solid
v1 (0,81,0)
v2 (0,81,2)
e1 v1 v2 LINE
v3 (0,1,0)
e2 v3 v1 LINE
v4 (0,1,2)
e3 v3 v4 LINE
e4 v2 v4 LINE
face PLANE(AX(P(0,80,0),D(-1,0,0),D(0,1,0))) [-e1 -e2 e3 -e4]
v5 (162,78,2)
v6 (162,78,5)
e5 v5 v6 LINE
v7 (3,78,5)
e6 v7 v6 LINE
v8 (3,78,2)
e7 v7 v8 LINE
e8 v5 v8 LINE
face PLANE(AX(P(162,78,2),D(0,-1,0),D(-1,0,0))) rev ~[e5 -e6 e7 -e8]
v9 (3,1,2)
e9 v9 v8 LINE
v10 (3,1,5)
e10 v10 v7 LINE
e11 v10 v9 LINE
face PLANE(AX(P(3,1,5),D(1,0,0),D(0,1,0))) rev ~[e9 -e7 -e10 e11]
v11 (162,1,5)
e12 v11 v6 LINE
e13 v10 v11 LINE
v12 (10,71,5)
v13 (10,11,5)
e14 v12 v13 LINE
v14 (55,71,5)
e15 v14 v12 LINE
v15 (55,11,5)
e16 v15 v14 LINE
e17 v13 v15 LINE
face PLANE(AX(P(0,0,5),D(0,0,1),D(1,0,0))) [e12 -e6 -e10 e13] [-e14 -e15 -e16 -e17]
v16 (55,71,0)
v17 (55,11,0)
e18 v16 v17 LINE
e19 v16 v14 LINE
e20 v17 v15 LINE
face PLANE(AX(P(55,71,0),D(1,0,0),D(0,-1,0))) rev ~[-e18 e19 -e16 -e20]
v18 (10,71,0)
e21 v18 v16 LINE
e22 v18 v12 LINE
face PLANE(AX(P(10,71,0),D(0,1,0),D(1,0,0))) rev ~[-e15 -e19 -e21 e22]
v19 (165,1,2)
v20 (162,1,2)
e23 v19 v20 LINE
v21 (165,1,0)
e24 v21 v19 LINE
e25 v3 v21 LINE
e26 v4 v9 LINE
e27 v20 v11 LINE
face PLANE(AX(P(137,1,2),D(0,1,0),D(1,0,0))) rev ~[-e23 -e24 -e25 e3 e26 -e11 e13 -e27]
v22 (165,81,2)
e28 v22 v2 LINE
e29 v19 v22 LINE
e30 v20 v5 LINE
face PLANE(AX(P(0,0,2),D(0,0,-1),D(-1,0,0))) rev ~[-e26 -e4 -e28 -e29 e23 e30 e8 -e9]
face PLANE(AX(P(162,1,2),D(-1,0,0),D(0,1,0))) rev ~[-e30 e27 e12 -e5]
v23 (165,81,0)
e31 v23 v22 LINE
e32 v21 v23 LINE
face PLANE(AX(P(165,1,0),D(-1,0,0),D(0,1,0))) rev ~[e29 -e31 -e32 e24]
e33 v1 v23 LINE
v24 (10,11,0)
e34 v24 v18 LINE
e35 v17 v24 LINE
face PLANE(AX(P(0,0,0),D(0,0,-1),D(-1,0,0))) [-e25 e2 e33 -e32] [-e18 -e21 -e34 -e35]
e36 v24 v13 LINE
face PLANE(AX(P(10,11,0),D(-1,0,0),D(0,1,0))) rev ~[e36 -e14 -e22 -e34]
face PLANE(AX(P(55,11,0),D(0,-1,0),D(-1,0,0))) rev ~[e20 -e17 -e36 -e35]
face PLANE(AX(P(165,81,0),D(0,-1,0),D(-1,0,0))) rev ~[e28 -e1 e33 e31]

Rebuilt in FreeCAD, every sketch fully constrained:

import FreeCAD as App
import Part
import Sketcher

V = App.Vector
Q = App.Units.Quantity

doc = App.newDocument("Part")
body = doc.addObject("PartDesign::Body", "Body")

# Sketch on XY plane
sketch1 = body.newObject("Sketcher::SketchObject", "Sketch")
sketch1.AttachmentSupport = (doc.getObject("XY_Plane"), [""])
sketch1.MapMode = "FlatFace"
sketch1.addGeometry(Part.LineSegment(V(0, 80, 0), V(0, 0, 0)), False)
sketch1.addGeometry(Part.LineSegment(V(0, 0, 0), V(140, 0, 0)), False)
sketch1.addGeometry(Part.LineSegment(V(140, 0, 0), V(140, 80, 0)), False)
sketch1.addGeometry(Part.LineSegment(V(140, 80, 0), V(0, 80, 0)), False)
sketch1.addConstraint(Sketcher.Constraint("Coincident", 0, 2, 1, 1))
sketch1.addConstraint(Sketcher.Constraint("Coincident", 1, 2, 2, 1))
sketch1.addConstraint(Sketcher.Constraint("Coincident", 2, 2, 3, 1))
sketch1.addConstraint(Sketcher.Constraint("Coincident", 3, 2, 0, 1))
sketch1.addConstraint(Sketcher.Constraint("Vertical", 0))
sketch1.addConstraint(Sketcher.Constraint("Horizontal", 1))
sketch1.addConstraint(Sketcher.Constraint("Vertical", 2))
sketch1.addConstraint(Sketcher.Constraint("Horizontal", 3))
sketch1.addConstraint(Sketcher.Constraint("Coincident", 0, 2, -1, 1))
sketch1.addConstraint(Sketcher.Constraint("DistanceX", 1, 1, 1, 2, Q("140 mm")))
sketch1.addConstraint(Sketcher.Constraint("DistanceY", 0, 2, 0, 1, Q("80 mm")))
pad1 = body.newObject("PartDesign::Pad", "Pad")
pad1.Profile = sketch1
pad1.Length = 2

# Sketch on XY plane
sketch2 = body.newObject("Sketcher::SketchObject", "Sketch001")
sketch2.AttachmentSupport = (doc.getObject("XY_Plane"), [""])
sketch2.MapMode = "FlatFace"
sketch2.AttachmentOffset = App.Placement(V(0, 0, 2), App.Rotation())
sketch2.addGeometry(Part.LineSegment(V(138, 78, 0), V(2, 78, 0)), False)
sketch2.addGeometry(Part.LineSegment(V(2, 78, 0), V(2, 2, 0)), False)
sketch2.addGeometry(Part.LineSegment(V(2, 2, 0), V(138, 2, 0)), False)
sketch2.addGeometry(Part.LineSegment(V(138, 2, 0), V(138, 78, 0)), False)
sketch2.addConstraint(Sketcher.Constraint("Coincident", 0, 2, 1, 1))
sketch2.addConstraint(Sketcher.Constraint("Coincident", 1, 2, 2, 1))
sketch2.addConstraint(Sketcher.Constraint("Coincident", 2, 2, 3, 1))
sketch2.addConstraint(Sketcher.Constraint("Coincident", 3, 2, 0, 1))
sketch2.addConstraint(Sketcher.Constraint("Horizontal", 0))
sketch2.addConstraint(Sketcher.Constraint("Vertical", 1))
sketch2.addConstraint(Sketcher.Constraint("Horizontal", 2))
sketch2.addConstraint(Sketcher.Constraint("Vertical", 3))
sketch2.addConstraint(Sketcher.Constraint("DistanceX", 0, 2, 0, 1, Q("136 mm")))
sketch2.addConstraint(Sketcher.Constraint("DistanceY", 1, 2, 1, 1, Q("76 mm")))
sketch2.addConstraint(Sketcher.Constraint("DistanceX", -1, 1, 0, 2, Q("2 mm")))
sketch2.addConstraint(Sketcher.Constraint("DistanceY", -1, 1, 1, 2, Q("2 mm")))
pad2 = body.newObject("PartDesign::Pad", "Pad001")
pad2.Profile = sketch2
pad2.Length = 3

# Sketch on XY plane
sketch3 = body.newObject("Sketcher::SketchObject", "Sketch002")
sketch3.AttachmentSupport = (doc.getObject("XY_Plane"), [""])
sketch3.MapMode = "FlatFace"
sketch3.AttachmentOffset = App.Placement(V(0, 0, 2), App.Rotation())
sketch3.addGeometry(Part.LineSegment(V(2, 2, 0), V(2, 0, 0)), False)
sketch3.addGeometry(Part.LineSegment(V(2, 0, 0), V(138, 0, 0)), False)
sketch3.addGeometry(Part.LineSegment(V(138, 0, 0), V(138, 2, 0)), False)
sketch3.addGeometry(Part.LineSegment(V(138, 2, 0), V(2, 2, 0)), False)
sketch3.addConstraint(Sketcher.Constraint("Coincident", 0, 2, 1, 1))
sketch3.addConstraint(Sketcher.Constraint("Coincident", 1, 2, 2, 1))
sketch3.addConstraint(Sketcher.Constraint("Coincident", 2, 2, 3, 1))
sketch3.addConstraint(Sketcher.Constraint("Coincident", 3, 2, 0, 1))
sketch3.addConstraint(Sketcher.Constraint("Vertical", 0))
sketch3.addConstraint(Sketcher.Constraint("Horizontal", 1))
sketch3.addConstraint(Sketcher.Constraint("Vertical", 2))
sketch3.addConstraint(Sketcher.Constraint("Horizontal", 3))
sketch3.addConstraint(Sketcher.Constraint("PointOnObject", 0, 2, -1))
sketch3.addConstraint(Sketcher.Constraint("DistanceX", 1, 1, 1, 2, Q("136 mm")))
sketch3.addConstraint(Sketcher.Constraint("DistanceY", 0, 2, 0, 1, Q("2 mm")))
sketch3.addConstraint(Sketcher.Constraint("DistanceX", -1, 1, 0, 2, Q("2 mm")))
pad3 = body.newObject("PartDesign::Pad", "Pad002")
pad3.Profile = sketch3
pad3.Length = 3

# Sketch on XY plane
sketch4 = body.newObject("Sketcher::SketchObject", "Sketch003")
sketch4.AttachmentSupport = (doc.getObject("XY_Plane"), [""])
sketch4.MapMode = "FlatFace"
sketch4.addGeometry(Part.LineSegment(V(140, 0, 0), V(0, 0, 0)), False)
sketch4.addGeometry(Part.LineSegment(V(0, 0, 0), V(0, 1, 0)), False)
sketch4.addGeometry(Part.LineSegment(V(0, 1, 0), V(140, 1, 0)), False)
sketch4.addGeometry(Part.LineSegment(V(140, 1, 0), V(140, 0, 0)), False)
sketch4.addConstraint(Sketcher.Constraint("Coincident", 0, 2, 1, 1))
sketch4.addConstraint(Sketcher.Constraint("Coincident", 1, 2, 2, 1))
sketch4.addConstraint(Sketcher.Constraint("Coincident", 2, 2, 3, 1))
sketch4.addConstraint(Sketcher.Constraint("Coincident", 3, 2, 0, 1))
sketch4.addConstraint(Sketcher.Constraint("Horizontal", 0))
sketch4.addConstraint(Sketcher.Constraint("Vertical", 1))
sketch4.addConstraint(Sketcher.Constraint("Horizontal", 2))
sketch4.addConstraint(Sketcher.Constraint("Vertical", 3))
sketch4.addConstraint(Sketcher.Constraint("Coincident", 0, 2, -1, 1))
sketch4.addConstraint(Sketcher.Constraint("DistanceY", 1, 1, 1, 2, Q("1 mm")))
sketch4.addConstraint(Sketcher.Constraint("DistanceX", 0, 2, 0, 1, Q("140 mm")))
pocket1 = body.newObject("PartDesign::Pocket", "Pocket")
pocket1.Profile = sketch4
pocket1.Length = 7.5
pocket1.Reversed = True

# Sketch on XY plane
sketch5 = body.newObject("Sketcher::SketchObject", "Sketch004")
sketch5.AttachmentSupport = (doc.getObject("XY_Plane"), [""])
sketch5.MapMode = "FlatFace"
sketch5.addGeometry(Part.LineSegment(V(140, 81, 0), V(140, 80, 0)), False)
sketch5.addGeometry(Part.LineSegment(V(140, 80, 0), V(0, 80, 0)), False)
sketch5.addGeometry(Part.LineSegment(V(0, 80, 0), V(0, 81, 0)), False)
sketch5.addGeometry(Part.LineSegment(V(0, 81, 0), V(140, 81, 0)), False)
sketch5.addConstraint(Sketcher.Constraint("Coincident", 0, 2, 1, 1))
sketch5.addConstraint(Sketcher.Constraint("Coincident", 1, 2, 2, 1))
sketch5.addConstraint(Sketcher.Constraint("Coincident", 2, 2, 3, 1))
sketch5.addConstraint(Sketcher.Constraint("Coincident", 3, 2, 0, 1))
sketch5.addConstraint(Sketcher.Constraint("Vertical", 0))
sketch5.addConstraint(Sketcher.Constraint("Horizontal", 1))
sketch5.addConstraint(Sketcher.Constraint("Vertical", 2))
sketch5.addConstraint(Sketcher.Constraint("Horizontal", 3))
sketch5.addConstraint(Sketcher.Constraint("PointOnObject", 1, 2, -2))
sketch5.addConstraint(Sketcher.Constraint("DistanceY", 0, 2, 0, 1, Q("1 mm")))
sketch5.addConstraint(Sketcher.Constraint("DistanceX", 1, 2, 1, 1, Q("140 mm")))
sketch5.addConstraint(Sketcher.Constraint("DistanceY", -1, 1, 0, 2, Q("80 mm")))
pad4 = body.newObject("PartDesign::Pad", "Pad003")
pad4.Profile = sketch5
pad4.Length = 2

# Sketch on XY plane
sketch6 = body.newObject("Sketcher::SketchObject", "Sketch005")
sketch6.AttachmentSupport = (doc.getObject("XY_Plane"), [""])
sketch6.MapMode = "FlatFace"
sketch6.AttachmentOffset = App.Placement(V(0, 0, 5), App.Rotation())
sketch6.addGeometry(Part.LineSegment(V(138, 1, 0), V(138, 78, 0)), False)
sketch6.addGeometry(Part.LineSegment(V(138, 78, 0), V(137, 78, 0)), False)
sketch6.addGeometry(Part.LineSegment(V(137, 78, 0), V(137, 1, 0)), False)
sketch6.addGeometry(Part.LineSegment(V(137, 1, 0), V(138, 1, 0)), False)
sketch6.addGeometry(Part.LineSegment(V(3, 1, 0), V(3, 78, 0)), False)
sketch6.addGeometry(Part.LineSegment(V(3, 78, 0), V(2, 78, 0)), False)
sketch6.addGeometry(Part.LineSegment(V(2, 78, 0), V(2, 1, 0)), False)
sketch6.addGeometry(Part.LineSegment(V(2, 1, 0), V(3, 1, 0)), False)
sketch6.addConstraint(Sketcher.Constraint("Coincident", 0, 2, 1, 1))
sketch6.addConstraint(Sketcher.Constraint("Coincident", 1, 2, 2, 1))
sketch6.addConstraint(Sketcher.Constraint("Coincident", 2, 2, 3, 1))
sketch6.addConstraint(Sketcher.Constraint("Coincident", 3, 2, 0, 1))
sketch6.addConstraint(Sketcher.Constraint("Coincident", 4, 2, 5, 1))
sketch6.addConstraint(Sketcher.Constraint("Coincident", 5, 2, 6, 1))
sketch6.addConstraint(Sketcher.Constraint("Coincident", 6, 2, 7, 1))
sketch6.addConstraint(Sketcher.Constraint("Coincident", 7, 2, 4, 1))
sketch6.addConstraint(Sketcher.Constraint("Vertical", 0))
sketch6.addConstraint(Sketcher.Constraint("Horizontal", 1))
sketch6.addConstraint(Sketcher.Constraint("Vertical", 2))
sketch6.addConstraint(Sketcher.Constraint("Horizontal", 3))
sketch6.addConstraint(Sketcher.Constraint("Vertical", 4))
sketch6.addConstraint(Sketcher.Constraint("Horizontal", 5))
sketch6.addConstraint(Sketcher.Constraint("Vertical", 6))
sketch6.addConstraint(Sketcher.Constraint("Horizontal", 7))
sketch6.addConstraint(Sketcher.Constraint("Horizontal", 1, 2, 4, 2))
sketch6.addConstraint(Sketcher.Constraint("Horizontal", 3, 2, 6, 2))
sketch6.addConstraint(Sketcher.Constraint("Equal", 3, 5))
sketch6.addConstraint(Sketcher.Constraint("DistanceX", 1, 2, 1, 1, Q("1 mm")))
sketch6.addConstraint(Sketcher.Constraint("DistanceY", -1, 1, 2, 2, Q("1 mm")))
sketch6.addConstraint(Sketcher.Constraint("DistanceY", 0, 1, 0, 2, Q("77 mm")))
sketch6.addConstraint(Sketcher.Constraint("DistanceX", -1, 1, 0, 2, Q("138 mm")))
sketch6.addConstraint(Sketcher.Constraint("DistanceX", -1, 1, 4, 2, Q("3 mm")))
pocket2 = body.newObject("PartDesign::Pocket", "Pocket001")
pocket2.Profile = sketch6
pocket2.Length = 3

# Sketch on XY plane
sketch7 = body.newObject("Sketcher::SketchObject", "Sketch006")
sketch7.AttachmentSupport = (doc.getObject("XY_Plane"), [""])
sketch7.MapMode = "FlatFace"
sketch7.addGeometry(Part.LineSegment(V(165, 1, 0), V(140, 1, 0)), False)
sketch7.addGeometry(Part.LineSegment(V(140, 1, 0), V(140, 81, 0)), False)
sketch7.addGeometry(Part.LineSegment(V(140, 81, 0), V(165, 81, 0)), False)
sketch7.addGeometry(Part.LineSegment(V(165, 81, 0), V(165, 1, 0)), False)
sketch7.addConstraint(Sketcher.Constraint("Coincident", 0, 2, 1, 1))
sketch7.addConstraint(Sketcher.Constraint("Coincident", 1, 2, 2, 1))
sketch7.addConstraint(Sketcher.Constraint("Coincident", 2, 2, 3, 1))
sketch7.addConstraint(Sketcher.Constraint("Coincident", 3, 2, 0, 1))
sketch7.addConstraint(Sketcher.Constraint("Horizontal", 0))
sketch7.addConstraint(Sketcher.Constraint("Vertical", 1))
sketch7.addConstraint(Sketcher.Constraint("Horizontal", 2))
sketch7.addConstraint(Sketcher.Constraint("Vertical", 3))
sketch7.addConstraint(Sketcher.Constraint("DistanceX", -1, 1, 2, 2, Q("165 mm")))
sketch7.addConstraint(Sketcher.Constraint("DistanceX", 0, 2, 0, 1, Q("25 mm")))
sketch7.addConstraint(Sketcher.Constraint("DistanceY", 1, 1, 1, 2, Q("80 mm")))
sketch7.addConstraint(Sketcher.Constraint("DistanceY", -1, 1, 0, 2, Q("1 mm")))
pad5 = body.newObject("PartDesign::Pad", "Pad004")
pad5.Profile = sketch7
pad5.Length = 2

# Sketch on XY plane
sketch8 = body.newObject("Sketcher::SketchObject", "Sketch007")
sketch8.AttachmentSupport = (doc.getObject("XY_Plane"), [""])
sketch8.MapMode = "FlatFace"
sketch8.AttachmentOffset = App.Placement(V(0, 0, 2), App.Rotation())
sketch8.addGeometry(Part.LineSegment(V(137, 78, 0), V(137, 1, 0)), False)
sketch8.addGeometry(Part.LineSegment(V(137, 1, 0), V(162, 1, 0)), False)
sketch8.addGeometry(Part.LineSegment(V(162, 1, 0), V(162, 78, 0)), False)
sketch8.addGeometry(Part.LineSegment(V(162, 78, 0), V(137, 78, 0)), False)
sketch8.addConstraint(Sketcher.Constraint("Coincident", 0, 2, 1, 1))
sketch8.addConstraint(Sketcher.Constraint("Coincident", 1, 2, 2, 1))
sketch8.addConstraint(Sketcher.Constraint("Coincident", 2, 2, 3, 1))
sketch8.addConstraint(Sketcher.Constraint("Coincident", 3, 2, 0, 1))
sketch8.addConstraint(Sketcher.Constraint("Vertical", 0))
sketch8.addConstraint(Sketcher.Constraint("Horizontal", 1))
sketch8.addConstraint(Sketcher.Constraint("Vertical", 2))
sketch8.addConstraint(Sketcher.Constraint("Horizontal", 3))
sketch8.addConstraint(Sketcher.Constraint("DistanceX", 1, 1, 1, 2, Q("25 mm")))
sketch8.addConstraint(Sketcher.Constraint("DistanceY", 0, 2, 0, 1, Q("77 mm")))
sketch8.addConstraint(Sketcher.Constraint("DistanceX", -1, 1, 0, 2, Q("137 mm")))
sketch8.addConstraint(Sketcher.Constraint("DistanceY", -1, 1, 0, 2, Q("1 mm")))
pad6 = body.newObject("PartDesign::Pad", "Pad005")
pad6.Profile = sketch8
pad6.Length = 3

# Sketch on XY plane
sketch9 = body.newObject("Sketcher::SketchObject", "Sketch008")
sketch9.AttachmentSupport = (doc.getObject("XY_Plane"), [""])
sketch9.MapMode = "FlatFace"
sketch9.addGeometry(Part.LineSegment(V(55, 11, 0), V(10, 11, 0)), False)
sketch9.addGeometry(Part.LineSegment(V(10, 11, 0), V(10, 71, 0)), False)
sketch9.addGeometry(Part.LineSegment(V(10, 71, 0), V(55, 71, 0)), False)
sketch9.addGeometry(Part.LineSegment(V(55, 71, 0), V(55, 11, 0)), False)
sketch9.addConstraint(Sketcher.Constraint("Coincident", 0, 2, 1, 1))
sketch9.addConstraint(Sketcher.Constraint("Coincident", 1, 2, 2, 1))
sketch9.addConstraint(Sketcher.Constraint("Coincident", 2, 2, 3, 1))
sketch9.addConstraint(Sketcher.Constraint("Coincident", 3, 2, 0, 1))
sketch9.addConstraint(Sketcher.Constraint("Horizontal", 0))
sketch9.addConstraint(Sketcher.Constraint("Vertical", 1))
sketch9.addConstraint(Sketcher.Constraint("Horizontal", 2))
sketch9.addConstraint(Sketcher.Constraint("Vertical", 3))
sketch9.addConstraint(Sketcher.Constraint("DistanceX", 0, 2, 0, 1, Q("45 mm")))
sketch9.addConstraint(Sketcher.Constraint("DistanceX", -1, 1, 0, 2, Q("10 mm")))
sketch9.addConstraint(Sketcher.Constraint("DistanceY", 1, 1, 1, 2, Q("60 mm")))
sketch9.addConstraint(Sketcher.Constraint("DistanceY", -1, 1, 0, 2, Q("11 mm")))
pocket3 = body.newObject("PartDesign::Pocket", "Pocket002")
pocket3.Profile = sketch9
pocket3.Length = 10.25
pocket3.Reversed = True

doc.recompute()
